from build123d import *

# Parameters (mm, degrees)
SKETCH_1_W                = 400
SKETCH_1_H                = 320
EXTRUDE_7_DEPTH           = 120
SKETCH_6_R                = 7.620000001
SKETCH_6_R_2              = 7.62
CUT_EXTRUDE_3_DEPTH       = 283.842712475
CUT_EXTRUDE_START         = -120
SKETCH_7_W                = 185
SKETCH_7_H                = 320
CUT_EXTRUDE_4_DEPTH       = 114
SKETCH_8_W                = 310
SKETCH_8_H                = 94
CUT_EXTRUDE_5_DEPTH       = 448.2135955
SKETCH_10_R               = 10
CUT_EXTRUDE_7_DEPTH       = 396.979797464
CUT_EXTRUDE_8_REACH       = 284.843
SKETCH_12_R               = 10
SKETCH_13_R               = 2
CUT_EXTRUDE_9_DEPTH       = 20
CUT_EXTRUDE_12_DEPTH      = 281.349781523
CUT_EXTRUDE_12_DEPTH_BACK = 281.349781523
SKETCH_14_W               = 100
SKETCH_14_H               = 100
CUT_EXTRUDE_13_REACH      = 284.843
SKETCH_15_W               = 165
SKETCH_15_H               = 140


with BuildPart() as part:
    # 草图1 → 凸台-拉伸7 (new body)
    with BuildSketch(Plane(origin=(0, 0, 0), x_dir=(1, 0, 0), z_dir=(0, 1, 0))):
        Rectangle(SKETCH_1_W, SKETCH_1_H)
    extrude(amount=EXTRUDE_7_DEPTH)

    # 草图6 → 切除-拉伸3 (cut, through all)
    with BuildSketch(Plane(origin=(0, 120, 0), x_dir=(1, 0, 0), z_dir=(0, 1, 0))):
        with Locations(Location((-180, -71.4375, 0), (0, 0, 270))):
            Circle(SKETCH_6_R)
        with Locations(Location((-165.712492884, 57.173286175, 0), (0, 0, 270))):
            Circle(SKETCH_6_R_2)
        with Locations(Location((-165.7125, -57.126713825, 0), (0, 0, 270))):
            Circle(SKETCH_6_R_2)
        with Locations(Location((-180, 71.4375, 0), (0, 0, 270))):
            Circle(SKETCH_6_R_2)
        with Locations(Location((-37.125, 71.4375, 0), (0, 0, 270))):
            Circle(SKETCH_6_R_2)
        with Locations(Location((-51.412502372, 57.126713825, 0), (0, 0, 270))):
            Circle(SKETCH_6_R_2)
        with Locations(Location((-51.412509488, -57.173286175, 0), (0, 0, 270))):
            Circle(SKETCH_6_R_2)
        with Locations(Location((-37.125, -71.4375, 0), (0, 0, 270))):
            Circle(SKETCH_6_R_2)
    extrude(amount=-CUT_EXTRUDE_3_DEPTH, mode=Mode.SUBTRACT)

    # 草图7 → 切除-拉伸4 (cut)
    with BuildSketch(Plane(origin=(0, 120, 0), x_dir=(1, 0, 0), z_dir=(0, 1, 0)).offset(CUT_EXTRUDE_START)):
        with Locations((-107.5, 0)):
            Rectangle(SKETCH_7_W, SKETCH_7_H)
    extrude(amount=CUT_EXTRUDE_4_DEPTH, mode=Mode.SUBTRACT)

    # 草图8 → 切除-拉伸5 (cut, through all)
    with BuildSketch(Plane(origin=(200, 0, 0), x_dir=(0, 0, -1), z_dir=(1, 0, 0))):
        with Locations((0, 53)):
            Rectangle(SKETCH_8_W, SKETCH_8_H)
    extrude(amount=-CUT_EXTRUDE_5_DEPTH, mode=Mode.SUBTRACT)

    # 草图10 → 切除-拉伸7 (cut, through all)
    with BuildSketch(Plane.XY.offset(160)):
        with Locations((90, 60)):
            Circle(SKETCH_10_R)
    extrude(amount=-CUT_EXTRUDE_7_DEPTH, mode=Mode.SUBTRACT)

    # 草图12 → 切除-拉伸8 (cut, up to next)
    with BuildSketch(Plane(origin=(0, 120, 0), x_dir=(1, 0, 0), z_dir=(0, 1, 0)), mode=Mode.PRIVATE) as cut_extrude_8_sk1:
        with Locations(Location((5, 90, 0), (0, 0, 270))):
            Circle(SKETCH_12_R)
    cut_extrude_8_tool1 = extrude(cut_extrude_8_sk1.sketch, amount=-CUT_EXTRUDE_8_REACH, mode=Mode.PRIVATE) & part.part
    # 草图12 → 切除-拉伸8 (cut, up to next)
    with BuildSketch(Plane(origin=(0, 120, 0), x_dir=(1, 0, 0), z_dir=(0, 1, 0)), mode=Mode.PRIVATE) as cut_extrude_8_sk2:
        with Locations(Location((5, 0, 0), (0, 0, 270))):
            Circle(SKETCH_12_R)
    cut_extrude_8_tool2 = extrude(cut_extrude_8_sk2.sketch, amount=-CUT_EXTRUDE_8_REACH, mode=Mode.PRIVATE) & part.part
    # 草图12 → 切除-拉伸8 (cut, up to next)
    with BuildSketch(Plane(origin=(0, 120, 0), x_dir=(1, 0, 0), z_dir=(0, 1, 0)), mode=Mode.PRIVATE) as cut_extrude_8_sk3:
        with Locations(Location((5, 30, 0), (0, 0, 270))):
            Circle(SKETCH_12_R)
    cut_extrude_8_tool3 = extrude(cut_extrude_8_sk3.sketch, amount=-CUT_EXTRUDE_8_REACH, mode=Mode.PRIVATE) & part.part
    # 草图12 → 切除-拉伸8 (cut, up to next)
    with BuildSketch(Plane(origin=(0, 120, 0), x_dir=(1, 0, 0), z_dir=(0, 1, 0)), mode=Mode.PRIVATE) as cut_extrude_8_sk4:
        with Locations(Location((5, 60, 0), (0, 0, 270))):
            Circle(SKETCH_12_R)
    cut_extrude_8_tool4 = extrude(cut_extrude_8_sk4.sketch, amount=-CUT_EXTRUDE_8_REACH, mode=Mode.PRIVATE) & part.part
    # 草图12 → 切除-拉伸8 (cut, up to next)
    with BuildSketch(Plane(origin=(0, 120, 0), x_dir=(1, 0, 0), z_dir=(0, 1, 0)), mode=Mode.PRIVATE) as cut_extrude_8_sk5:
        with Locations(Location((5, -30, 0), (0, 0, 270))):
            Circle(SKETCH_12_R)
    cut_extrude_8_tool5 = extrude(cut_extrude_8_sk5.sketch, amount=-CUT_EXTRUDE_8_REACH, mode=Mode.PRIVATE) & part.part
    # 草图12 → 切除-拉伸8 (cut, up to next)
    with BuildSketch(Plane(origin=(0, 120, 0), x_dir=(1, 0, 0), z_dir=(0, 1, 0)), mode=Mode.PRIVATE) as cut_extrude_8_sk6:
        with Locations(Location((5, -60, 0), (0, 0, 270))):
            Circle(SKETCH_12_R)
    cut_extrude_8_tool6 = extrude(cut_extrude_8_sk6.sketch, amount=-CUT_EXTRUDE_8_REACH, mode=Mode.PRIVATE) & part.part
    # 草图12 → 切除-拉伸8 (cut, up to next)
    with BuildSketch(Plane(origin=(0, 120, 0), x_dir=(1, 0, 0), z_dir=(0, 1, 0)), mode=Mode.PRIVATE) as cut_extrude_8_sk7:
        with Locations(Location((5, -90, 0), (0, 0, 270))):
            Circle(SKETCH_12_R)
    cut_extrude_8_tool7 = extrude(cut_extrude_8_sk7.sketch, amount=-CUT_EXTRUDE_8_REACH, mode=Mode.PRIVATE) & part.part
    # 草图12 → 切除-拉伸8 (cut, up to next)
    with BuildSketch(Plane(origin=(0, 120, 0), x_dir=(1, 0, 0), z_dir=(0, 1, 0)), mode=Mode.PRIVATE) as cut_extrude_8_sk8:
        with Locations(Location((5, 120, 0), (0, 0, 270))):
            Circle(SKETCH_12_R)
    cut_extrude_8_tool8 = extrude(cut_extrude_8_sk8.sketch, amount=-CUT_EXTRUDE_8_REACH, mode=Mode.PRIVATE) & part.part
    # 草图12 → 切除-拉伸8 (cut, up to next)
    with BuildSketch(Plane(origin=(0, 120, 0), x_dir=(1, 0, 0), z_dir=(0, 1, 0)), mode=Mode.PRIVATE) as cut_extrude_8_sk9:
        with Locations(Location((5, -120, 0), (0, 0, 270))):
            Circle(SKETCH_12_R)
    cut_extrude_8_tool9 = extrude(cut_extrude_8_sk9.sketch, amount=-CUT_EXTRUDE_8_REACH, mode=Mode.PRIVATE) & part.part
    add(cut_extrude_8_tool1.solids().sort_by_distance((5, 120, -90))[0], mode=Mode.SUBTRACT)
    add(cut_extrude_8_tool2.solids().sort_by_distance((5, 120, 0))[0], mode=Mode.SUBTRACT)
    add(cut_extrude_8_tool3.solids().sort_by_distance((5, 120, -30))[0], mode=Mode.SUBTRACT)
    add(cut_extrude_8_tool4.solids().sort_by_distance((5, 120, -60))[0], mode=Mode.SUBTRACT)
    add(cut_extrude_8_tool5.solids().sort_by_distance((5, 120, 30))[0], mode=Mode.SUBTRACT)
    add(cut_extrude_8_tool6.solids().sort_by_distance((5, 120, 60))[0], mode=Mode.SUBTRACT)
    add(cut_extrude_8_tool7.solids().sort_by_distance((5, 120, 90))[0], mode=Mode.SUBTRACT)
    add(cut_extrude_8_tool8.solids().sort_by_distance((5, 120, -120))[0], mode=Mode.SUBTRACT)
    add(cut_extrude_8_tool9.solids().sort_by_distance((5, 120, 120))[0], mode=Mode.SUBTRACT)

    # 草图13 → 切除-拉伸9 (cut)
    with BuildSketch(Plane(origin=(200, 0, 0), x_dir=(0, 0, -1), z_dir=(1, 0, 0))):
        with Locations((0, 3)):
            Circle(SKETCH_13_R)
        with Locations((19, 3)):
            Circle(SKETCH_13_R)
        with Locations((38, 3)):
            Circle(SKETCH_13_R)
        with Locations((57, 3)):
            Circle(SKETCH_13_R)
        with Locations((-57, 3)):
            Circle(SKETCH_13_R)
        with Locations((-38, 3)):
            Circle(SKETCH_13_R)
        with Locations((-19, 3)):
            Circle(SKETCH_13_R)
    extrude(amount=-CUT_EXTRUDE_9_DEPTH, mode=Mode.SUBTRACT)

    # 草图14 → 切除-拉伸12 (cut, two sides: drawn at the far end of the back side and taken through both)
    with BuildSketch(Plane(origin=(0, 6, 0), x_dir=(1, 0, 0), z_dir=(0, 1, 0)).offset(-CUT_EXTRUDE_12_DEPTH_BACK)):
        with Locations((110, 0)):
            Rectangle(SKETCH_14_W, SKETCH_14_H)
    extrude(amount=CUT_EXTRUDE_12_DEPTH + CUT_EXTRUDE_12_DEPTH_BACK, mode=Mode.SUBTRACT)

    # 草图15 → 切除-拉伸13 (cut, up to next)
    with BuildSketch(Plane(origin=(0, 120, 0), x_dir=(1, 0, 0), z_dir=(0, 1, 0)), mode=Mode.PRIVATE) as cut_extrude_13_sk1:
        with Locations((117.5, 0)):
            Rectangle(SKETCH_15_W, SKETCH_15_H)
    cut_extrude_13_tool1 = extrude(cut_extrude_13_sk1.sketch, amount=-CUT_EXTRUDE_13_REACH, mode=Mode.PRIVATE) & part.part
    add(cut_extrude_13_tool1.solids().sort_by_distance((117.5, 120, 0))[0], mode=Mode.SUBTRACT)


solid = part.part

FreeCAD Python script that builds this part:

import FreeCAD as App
import Part
import Sketcher

V = App.Vector


def add_polygon(sketch, points):
    """Adds a closed chain of lines whose ends are joined by coincident constraints."""
    first, n = sketch.GeometryCount, len(points)
    for a, b in zip(points, points[1:] + points[:1]):
        sketch.addGeometry(Part.LineSegment(App.Vector(*a, 0), App.Vector(*b, 0)), False)
    for i in range(n):
        sketch.addConstraint(Sketcher.Constraint("Coincident", first + i, 2, first + (i + 1) % n, 1))

doc = App.newDocument("Part")
body = doc.addObject("PartDesign::Body", "Body")

# Sketch on XZ plane
sketch1 = doc.addObject("Sketcher::SketchObject", "Sketch")
body.addObject(sketch1)
sketch1.AttachmentSupport = (doc.XZ_Plane, [""])
sketch1.MapMode = "FlatFace"
add_polygon(sketch1, [(-200, -160), (-200, 160), (200, 160), (200, -160)])  # lines 0-3
sketch1.addConstraint([
    Sketcher.Constraint("Vertical", 0),
    Sketcher.Constraint("Horizontal", 1),
    Sketcher.Constraint("Vertical", 2),
    Sketcher.Constraint("Horizontal", 3),
    Sketcher.Constraint("Symmetric", 0, 2, 2, 2, -1, 1),
    Sketcher.Constraint("DistanceX", 1, 1, 1, 2, 400.0),
    Sketcher.Constraint("DistanceY", 0, 1, 0, 2, 320.0),
])
pad1 = doc.addObject("PartDesign::Pad", "Pad")
body.addObject(pad1)
pad1.Profile = sketch1
pad1.Length = 120
pad1.Reversed = True

# Sketch on XZ plane
sketch2 = doc.addObject("Sketcher::SketchObject", "Sketch001")
body.addObject(sketch2)
sketch2.AttachmentSupport = (doc.XZ_Plane, [""])
sketch2.MapMode = "FlatFace"
sketch2.AttachmentOffset = App.Placement(V(0, 0, -120), App.Rotation())
sketch2.addGeometry([
    Part.Circle(V(-180, 71, 0), V(0, 0, 1), 8),  # 0
    Part.Circle(V(-166, -57, 0), V(0, 0, 1), 8),  # 1
    Part.Circle(V(-166, 57, 0), V(0, 0, 1), 8),  # 2
    Part.Circle(V(-180, -71, 0), V(0, 0, 1), 8),  # 3
    Part.Circle(V(-37, -71, 0), V(0, 0, 1), 8),  # 4
    Part.Circle(V(-51, -57, 0), V(0, 0, 1), 8),  # 5
    Part.Circle(V(-51, 57, 0), V(0, 0, 1), 8),  # 6
    Part.Circle(V(-37, 71, 0), V(0, 0, 1), 8),  # 7
], False)
sketch2.addConstraint([
    Sketcher.Constraint("Equal", 0, 1),
    Sketcher.Constraint("Equal", 1, 2),
    Sketcher.Constraint("Equal", 2, 3),
    Sketcher.Constraint("Equal", 3, 4),
    Sketcher.Constraint("Equal", 4, 5),
    Sketcher.Constraint("Equal", 5, 6),
    Sketcher.Constraint("Equal", 6, 7),
    Sketcher.Constraint("Symmetric", 0, 3, 3, 3, -1),
    Sketcher.Constraint("Symmetric", 4, 3, 7, 3, -1),
    Sketcher.Constraint("Horizontal", 3, 3, 4, 3),
    Sketcher.Constraint("Diameter", 0, 15.24),
    Sketcher.Constraint("DistanceX", 0, 3, -1, 1, 180.0),
    Sketcher.Constraint("DistanceY", 1, 3, 2, 3, 114.3),
    Sketcher.Constraint("DistanceY", 5, 3, 6, 3, 114.3),
    Sketcher.Constraint("DistanceX", 4, 3, -1, 1, 37.125),
    Sketcher.Constraint("DistanceY", 3, 3, 0, 3, 142.875),
    Sketcher.Constraint("DistanceX", 2, 3, -1, 1, 165.7125),
    Sketcher.Constraint("DistanceX", 6, 3, -1, 1, 51.412509),
    Sketcher.Constraint("DistanceX", 1, 3, 5, 3, 114.299991),
    Sketcher.Constraint("DistanceX", 1, 3, -1, 1, 165.712493),
    Sketcher.Constraint("DistanceY", 1, 3, -1, 1, 57.173286),
    Sketcher.Constraint("DistanceY", 5, 3, -1, 1, 57.126714),
])
pocket1 = doc.addObject("PartDesign::Pocket", "Pocket")
body.addObject(pocket1)
pocket1.Profile = sketch2
pocket1.Type = "ThroughAll"
pocket1.Reversed = True

# Sketch on XZ plane
sketch3 = doc.addObject("Sketcher::SketchObject", "Sketch002")
body.addObject(sketch3)
sketch3.AttachmentSupport = (doc.XZ_Plane, [""])
sketch3.MapMode = "FlatFace"
add_polygon(sketch3, [(-200, -160), (-200, 160), (-15, 160), (-15, -160)])  # lines 0-3
sketch3.addConstraint([
    Sketcher.Constraint("Vertical", 0),
    Sketcher.Constraint("Horizontal", 1),
    Sketcher.Constraint("Vertical", 2),
    Sketcher.Constraint("Horizontal", 3),
    Sketcher.Constraint("DistanceX", 1, 1, 1, 2, 185.0),
    Sketcher.Constraint("DistanceY", 0, 1, 0, 2, 320.0),
    Sketcher.Constraint("DistanceX", 0, 2, -1, 1, 200.0),
    Sketcher.Constraint("DistanceY", -1, 1, 0, 2, 160.0),
])
pocket2 = doc.addObject("PartDesign::Pocket", "Pocket001")
body.addObject(pocket2)
pocket2.Profile = sketch3
pocket2.Length = 114

# Sketch on YZ plane
sketch4 = doc.addObject("Sketcher::SketchObject", "Sketch003")
body.addObject(sketch4)
sketch4.AttachmentSupport = (doc.YZ_Plane, [""])
sketch4.MapMode = "FlatFace"
sketch4.AttachmentOffset = App.Placement(V(0, 0, 200), App.Rotation())
add_polygon(sketch4, [(100, 155), (6, 155), (6, -155), (100, -155)])  # lines 0-3
sketch4.addConstraint([
    Sketcher.Constraint("Horizontal", 0),
    Sketcher.Constraint("Vertical", 1),
    Sketcher.Constraint("Horizontal", 2),
    Sketcher.Constraint("Vertical", 3),
    Sketcher.Constraint("DistanceX", 0, 2, 0, 1, 94.0),
    Sketcher.Constraint("DistanceY", 1, 2, 1, 1, 310.0),
    Sketcher.Constraint("DistanceX", -1, 1, 0, 2, 6.0),
    Sketcher.Constraint("DistanceY", -1, 1, 0, 2, 155.0),
])
pocket3 = doc.addObject("PartDesign::Pocket", "Pocket002")
body.addObject(pocket3)
pocket3.Profile = sketch4
pocket3.Type = "ThroughAll"

# Sketch on XY plane
sketch5 = doc.addObject("Sketcher::SketchObject", "Sketch004")
body.addObject(sketch5)
sketch5.AttachmentSupport = (doc.XY_Plane, [""])
sketch5.MapMode = "FlatFace"
sketch5.AttachmentOffset = App.Placement(V(0, 0, 160), App.Rotation())
sketch5.addGeometry(Part.Circle(V(90, 60, 0), V(0, 0, 1), 10), False)
sketch5.addConstraint([
    Sketcher.Constraint("Diameter", 0, 20.0),
    Sketcher.Constraint("DistanceX", -1, 1, 0, 3, 90.0),
    Sketcher.Constraint("DistanceY", -1, 1, 0, 3, 60.0),
])
pocket4 = doc.addObject("PartDesign::Pocket", "Pocket003")
body.addObject(pocket4)
pocket4.Profile = sketch5
pocket4.Type = "ThroughAll"

# Sketch on XZ plane
sketch6 = doc.addObject("Sketcher::SketchObject", "Sketch005")
body.addObject(sketch6)
sketch6.AttachmentSupport = (doc.XZ_Plane, [""])
sketch6.MapMode = "FlatFace"
sketch6.AttachmentOffset = App.Placement(V(0, 0, -120), App.Rotation())
sketch6.addGeometry(Part.Circle(V(5, -90, 0), V(0, 0, 1), 10), False)
sketch6.addConstraint([
    Sketcher.Constraint("Diameter", 0, 20.0),
    Sketcher.Constraint("DistanceX", -1, 1, 0, 3, 5.0),
    Sketcher.Constraint("DistanceY", 0, 3, -1, 1, 90.0),
])
pocket5 = doc.addObject("PartDesign::Pocket", "Pocket004")
body.addObject(pocket5)
pocket5.Profile = sketch6
pocket5.Type = "UpToFirst"
pocket5.Reversed = True

# Sketch on XZ plane
sketch7 = doc.addObject("Sketcher::SketchObject", "Sketch006")
body.addObject(sketch7)
sketch7.AttachmentSupport = (doc.XZ_Plane, [""])
sketch7.MapMode = "FlatFace"
sketch7.AttachmentOffset = App.Placement(V(0, 0, -120), App.Rotation())
sketch7.addGeometry(Part.Circle(V(5, 0, 0), V(0, 0, 1), 10), False)
sketch7.addConstraint([
    Sketcher.Constraint("PointOnObject", 0, 3, -1),
    Sketcher.Constraint("Diameter", 0, 20.0),
    Sketcher.Constraint("DistanceX", -1, 1, 0, 3, 5.0),
])
pocket6 = doc.addObject("PartDesign::Pocket", "Pocket005")
body.addObject(pocket6)
pocket6.Profile = sketch7
pocket6.Type = "UpToFirst"
pocket6.Reversed = True

# Sketch on XZ plane
sketch8 = doc.addObject("Sketcher::SketchObject", "Sketch007")
body.addObject(sketch8)
sketch8.AttachmentSupport = (doc.XZ_Plane, [""])
sketch8.MapMode = "FlatFace"
sketch8.AttachmentOffset = App.Placement(V(0, 0, -120), App.Rotation())
sketch8.addGeometry(Part.Circle(V(5, -30, 0), V(0, 0, 1), 10), False)
sketch8.addConstraint([
    Sketcher.Constraint("Diameter", 0, 20.0),
    Sketcher.Constraint("DistanceX", -1, 1, 0, 3, 5.0),
    Sketcher.Constraint("DistanceY", 0, 3, -1, 1, 30.0),
])
pocket7 = doc.addObject("PartDesign::Pocket", "Pocket006")
body.addObject(pocket7)
pocket7.Profile = sketch8
pocket7.Type = "UpToFirst"
pocket7.Reversed = True

# Sketch on XZ plane
sketch9 = doc.addObject("Sketcher::SketchObject", "Sketch008")
body.addObject(sketch9)
sketch9.AttachmentSupport = (doc.XZ_Plane, [""])
sketch9.MapMode = "FlatFace"
sketch9.AttachmentOffset = App.Placement(V(0, 0, -120), App.Rotation())
sketch9.addGeometry(Part.Circle(V(5, -60, 0), V(0, 0, 1), 10), False)
sketch9.addConstraint([
    Sketcher.Constraint("Diameter", 0, 20.0),
    Sketcher.Constraint("DistanceX", -1, 1, 0, 3, 5.0),
    Sketcher.Constraint("DistanceY", 0, 3, -1, 1, 60.0),
])
pocket8 = doc.addObject("PartDesign::Pocket", "Pocket007")
body.addObject(pocket8)
pocket8.Profile = sketch9
pocket8.Type = "UpToFirst"
pocket8.Reversed = True

# Sketch on XZ plane
sketch10 = doc.addObject("Sketcher::SketchObject", "Sketch009")
body.addObject(sketch10)
sketch10.AttachmentSupport = (doc.XZ_Plane, [""])
sketch10.MapMode = "FlatFace"
sketch10.AttachmentOffset = App.Placement(V(0, 0, -120), App.Rotation())
sketch10.addGeometry(Part.Circle(V(5, 30, 0), V(0, 0, 1), 10), False)
sketch10.addConstraint([
    Sketcher.Constraint("Diameter", 0, 20.0),
    Sketcher.Constraint("DistanceX", -1, 1, 0, 3, 5.0),
    Sketcher.Constraint("DistanceY", -1, 1, 0, 3, 30.0),
])
pocket9 = doc.addObject("PartDesign::Pocket", "Pocket008")
body.addObject(pocket9)
pocket9.Profile = sketch10
pocket9.Type = "UpToFirst"
pocket9.Reversed = True

# Sketch on XZ plane
sketch11 = doc.addObject("Sketcher::SketchObject", "Sketch010")
body.addObject(sketch11)
sketch11.AttachmentSupport = (doc.XZ_Plane, [""])
sketch11.MapMode = "FlatFace"
sketch11.AttachmentOffset = App.Placement(V(0, 0, -120), App.Rotation())
sketch11.addGeometry(Part.Circle(V(5, 60, 0), V(0, 0, 1), 10), False)
sketch11.addConstraint([
    Sketcher.Constraint("Diameter", 0, 20.0),
    Sketcher.Constraint("DistanceX", -1, 1, 0, 3, 5.0),
    Sketcher.Constraint("DistanceY", -1, 1, 0, 3, 60.0),
])
pocket10 = doc.addObject("PartDesign::Pocket", "Pocket009")
body.addObject(pocket10)
pocket10.Profile = sketch11
pocket10.Type = "UpToFirst"
pocket10.Reversed = True

# Sketch on XZ plane
sketch12 = doc.addObject("Sketcher::SketchObject", "Sketch011")
body.addObject(sketch12)
sketch12.AttachmentSupport = (doc.XZ_Plane, [""])
sketch12.MapMode = "FlatFace"
sketch12.AttachmentOffset = App.Placement(V(0, 0, -120), App.Rotation())
sketch12.addGeometry(Part.Circle(V(5, 90, 0), V(0, 0, 1), 10), False)
sketch12.addConstraint([
    Sketcher.Constraint("Diameter", 0, 20.0),
    Sketcher.Constraint("DistanceX", -1, 1, 0, 3, 5.0),
    Sketcher.Constraint("DistanceY", -1, 1, 0, 3, 90.0),
])
pocket11 = doc.addObject("PartDesign::Pocket", "Pocket010")
body.addObject(pocket11)
pocket11.Profile = sketch12
pocket11.Type = "UpToFirst"
pocket11.Reversed = True

# Sketch on XZ plane
sketch13 = doc.addObject("Sketcher::SketchObject", "Sketch012")
body.addObject(sketch13)
sketch13.AttachmentSupport = (doc.XZ_Plane, [""])
sketch13.MapMode = "FlatFace"
sketch13.AttachmentOffset = App.Placement(V(0, 0, -120), App.Rotation())
sketch13.addGeometry(Part.Circle(V(5, -120, 0), V(0, 0, 1), 10), False)
sketch13.addConstraint([
    Sketcher.Constraint("Diameter", 0, 20.0),
    Sketcher.Constraint("DistanceX", -1, 1, 0, 3, 5.0),
    Sketcher.Constraint("DistanceY", 0, 3, -1, 1, 120.0),
])
pocket12 = doc.addObject("PartDesign::Pocket", "Pocket011")
body.addObject(pocket12)
pocket12.Profile = sketch13
pocket12.Type = "UpToFirst"
pocket12.Reversed = True

# Sketch on XZ plane
sketch14 = doc.addObject("Sketcher::SketchObject", "Sketch013")
body.addObject(sketch14)
sketch14.AttachmentSupport = (doc.XZ_Plane, [""])
sketch14.MapMode = "FlatFace"
sketch14.AttachmentOffset = App.Placement(V(0, 0, -120), App.Rotation())
sketch14.addGeometry(Part.Circle(V(5, 120, 0), V(0, 0, 1), 10), False)
sketch14.addConstraint([
    Sketcher.Constraint("Diameter", 0, 20.0),
    Sketcher.Constraint("DistanceX", -1, 1, 0, 3, 5.0),
    Sketcher.Constraint("DistanceY", -1, 1, 0, 3, 120.0),
])
pocket13 = doc.addObject("PartDesign::Pocket", "Pocket012")
body.addObject(pocket13)
pocket13.Profile = sketch14
pocket13.Type = "UpToFirst"
pocket13.Reversed = True

# Sketch on YZ plane
sketch15 = doc.addObject("Sketcher::SketchObject", "Sketch014")
body.addObject(sketch15)
sketch15.AttachmentSupport = (doc.YZ_Plane, [""])
sketch15.MapMode = "FlatFace"
sketch15.AttachmentOffset = App.Placement(V(0, 0, 200), App.Rotation())
sketch15.addGeometry([
    Part.Circle(V(3, 0, 0), V(0, 0, 1), 2),  # 0
    Part.Circle(V(3, -19, 0), V(0, 0, 1), 2),  # 1
    Part.Circle(V(3, -38, 0), V(0, 0, 1), 2),  # 2
    Part.Circle(V(3, -57, 0), V(0, 0, 1), 2),  # 3
    Part.Circle(V(3, 57, 0), V(0, 0, 1), 2),  # 4
    Part.Circle(V(3, 38, 0), V(0, 0, 1), 2),  # 5
    Part.Circle(V(3, 19, 0), V(0, 0, 1), 2),  # 6
], False)
sketch15.addConstraint([
    Sketcher.Constraint("Equal", 0, 1),
    Sketcher.Constraint("Equal", 1, 2),
    Sketcher.Constraint("Equal", 2, 3),
    Sketcher.Constraint("Equal", 3, 4),
    Sketcher.Constraint("Equal", 4, 5),
    Sketcher.Constraint("Equal", 5, 6),
    Sketcher.Constraint("Symmetric", 3, 3, 4, 3, -1),
    Sketcher.Constraint("Symmetric", 2, 3, 5, 3, -1),
    Sketcher.Constraint("Symmetric", 1, 3, 6, 3, -1),
    Sketcher.Constraint("PointOnObject", 0, 3, -1),
    Sketcher.Constraint("Vertical", 0, 3, 1, 3),
    Sketcher.Constraint("Vertical", 1, 3, 2, 3),
    Sketcher.Constraint("Vertical", 2, 3, 3, 3),
    Sketcher.Constraint("Diameter", 0, 4.0),
    Sketcher.Constraint("DistanceX", -1, 1, 0, 3, 3.0),
    Sketcher.Constraint("DistanceY", 1, 3, -1, 1, 19.0),
    Sketcher.Constraint("DistanceY", 2, 3, -1, 1, 38.0),
    Sketcher.Constraint("DistanceY", 3, 3, -1, 1, 57.0),
])
pocket14 = doc.addObject("PartDesign::Pocket", "Pocket013")
body.addObject(pocket14)
pocket14.Profile = sketch15
pocket14.Length = 20

# Sketch on XZ plane
sketch16 = doc.addObject("Sketcher::SketchObject", "Sketch015")
body.addObject(sketch16)
sketch16.AttachmentSupport = (doc.XZ_Plane, [""])
sketch16.MapMode = "FlatFace"
sketch16.AttachmentOffset = App.Placement(V(0, 0, -6), App.Rotation())
add_polygon(sketch16, [(60, -50), (60, 50), (160, 50), (160, -50)])  # lines 0-3
sketch16.addConstraint([
    Sketcher.Constraint("Vertical", 0),
    Sketcher.Constraint("Horizontal", 1),
    Sketcher.Constraint("Vertical", 2),
    Sketcher.Constraint("Horizontal", 3),
    Sketcher.Constraint("Equal", 3, 0),
    Sketcher.Constraint("DistanceX", 1, 1, 1, 2, 100.0),
    Sketcher.Constraint("DistanceX", -1, 1, 0, 2, 60.0),
    Sketcher.Constraint("DistanceY", -1, 1, 0, 2, 50.0),
])
pocket15 = doc.addObject("PartDesign::Pocket", "Pocket014")
body.addObject(pocket15)
pocket15.Profile = sketch16
pocket15.Type = "ThroughAll"
pocket15.Midplane = True

# Sketch on XZ plane
sketch17 = doc.addObject("Sketcher::SketchObject", "Sketch016")
body.addObject(sketch17)
sketch17.AttachmentSupport = (doc.XZ_Plane, [""])
sketch17.MapMode = "FlatFace"
sketch17.AttachmentOffset = App.Placement(V(0, 0, -120), App.Rotation())
add_polygon(sketch17, [(35, -70), (35, 70), (200, 70), (200, -70)])  # lines 0-3
sketch17.addConstraint([
    Sketcher.Constraint("Vertical", 0),
    Sketcher.Constraint("Horizontal", 1),
    Sketcher.Constraint("Vertical", 2),
    Sketcher.Constraint("Horizontal", 3),
    Sketcher.Constraint("DistanceX", 1, 1, 1, 2, 165.0),
    Sketcher.Constraint("DistanceY", 0, 1, 0, 2, 140.0),
    Sketcher.Constraint("DistanceX", -1, 1, 0, 2, 35.0),
    Sketcher.Constraint("DistanceY", -1, 1, 0, 2, 70.0),
])
pocket16 = doc.addObject("PartDesign::Pocket", "Pocket015")
body.addObject(pocket16)
pocket16.Profile = sketch17
pocket16.Length = 20
pocket16.Reversed = True

doc.recompute()
